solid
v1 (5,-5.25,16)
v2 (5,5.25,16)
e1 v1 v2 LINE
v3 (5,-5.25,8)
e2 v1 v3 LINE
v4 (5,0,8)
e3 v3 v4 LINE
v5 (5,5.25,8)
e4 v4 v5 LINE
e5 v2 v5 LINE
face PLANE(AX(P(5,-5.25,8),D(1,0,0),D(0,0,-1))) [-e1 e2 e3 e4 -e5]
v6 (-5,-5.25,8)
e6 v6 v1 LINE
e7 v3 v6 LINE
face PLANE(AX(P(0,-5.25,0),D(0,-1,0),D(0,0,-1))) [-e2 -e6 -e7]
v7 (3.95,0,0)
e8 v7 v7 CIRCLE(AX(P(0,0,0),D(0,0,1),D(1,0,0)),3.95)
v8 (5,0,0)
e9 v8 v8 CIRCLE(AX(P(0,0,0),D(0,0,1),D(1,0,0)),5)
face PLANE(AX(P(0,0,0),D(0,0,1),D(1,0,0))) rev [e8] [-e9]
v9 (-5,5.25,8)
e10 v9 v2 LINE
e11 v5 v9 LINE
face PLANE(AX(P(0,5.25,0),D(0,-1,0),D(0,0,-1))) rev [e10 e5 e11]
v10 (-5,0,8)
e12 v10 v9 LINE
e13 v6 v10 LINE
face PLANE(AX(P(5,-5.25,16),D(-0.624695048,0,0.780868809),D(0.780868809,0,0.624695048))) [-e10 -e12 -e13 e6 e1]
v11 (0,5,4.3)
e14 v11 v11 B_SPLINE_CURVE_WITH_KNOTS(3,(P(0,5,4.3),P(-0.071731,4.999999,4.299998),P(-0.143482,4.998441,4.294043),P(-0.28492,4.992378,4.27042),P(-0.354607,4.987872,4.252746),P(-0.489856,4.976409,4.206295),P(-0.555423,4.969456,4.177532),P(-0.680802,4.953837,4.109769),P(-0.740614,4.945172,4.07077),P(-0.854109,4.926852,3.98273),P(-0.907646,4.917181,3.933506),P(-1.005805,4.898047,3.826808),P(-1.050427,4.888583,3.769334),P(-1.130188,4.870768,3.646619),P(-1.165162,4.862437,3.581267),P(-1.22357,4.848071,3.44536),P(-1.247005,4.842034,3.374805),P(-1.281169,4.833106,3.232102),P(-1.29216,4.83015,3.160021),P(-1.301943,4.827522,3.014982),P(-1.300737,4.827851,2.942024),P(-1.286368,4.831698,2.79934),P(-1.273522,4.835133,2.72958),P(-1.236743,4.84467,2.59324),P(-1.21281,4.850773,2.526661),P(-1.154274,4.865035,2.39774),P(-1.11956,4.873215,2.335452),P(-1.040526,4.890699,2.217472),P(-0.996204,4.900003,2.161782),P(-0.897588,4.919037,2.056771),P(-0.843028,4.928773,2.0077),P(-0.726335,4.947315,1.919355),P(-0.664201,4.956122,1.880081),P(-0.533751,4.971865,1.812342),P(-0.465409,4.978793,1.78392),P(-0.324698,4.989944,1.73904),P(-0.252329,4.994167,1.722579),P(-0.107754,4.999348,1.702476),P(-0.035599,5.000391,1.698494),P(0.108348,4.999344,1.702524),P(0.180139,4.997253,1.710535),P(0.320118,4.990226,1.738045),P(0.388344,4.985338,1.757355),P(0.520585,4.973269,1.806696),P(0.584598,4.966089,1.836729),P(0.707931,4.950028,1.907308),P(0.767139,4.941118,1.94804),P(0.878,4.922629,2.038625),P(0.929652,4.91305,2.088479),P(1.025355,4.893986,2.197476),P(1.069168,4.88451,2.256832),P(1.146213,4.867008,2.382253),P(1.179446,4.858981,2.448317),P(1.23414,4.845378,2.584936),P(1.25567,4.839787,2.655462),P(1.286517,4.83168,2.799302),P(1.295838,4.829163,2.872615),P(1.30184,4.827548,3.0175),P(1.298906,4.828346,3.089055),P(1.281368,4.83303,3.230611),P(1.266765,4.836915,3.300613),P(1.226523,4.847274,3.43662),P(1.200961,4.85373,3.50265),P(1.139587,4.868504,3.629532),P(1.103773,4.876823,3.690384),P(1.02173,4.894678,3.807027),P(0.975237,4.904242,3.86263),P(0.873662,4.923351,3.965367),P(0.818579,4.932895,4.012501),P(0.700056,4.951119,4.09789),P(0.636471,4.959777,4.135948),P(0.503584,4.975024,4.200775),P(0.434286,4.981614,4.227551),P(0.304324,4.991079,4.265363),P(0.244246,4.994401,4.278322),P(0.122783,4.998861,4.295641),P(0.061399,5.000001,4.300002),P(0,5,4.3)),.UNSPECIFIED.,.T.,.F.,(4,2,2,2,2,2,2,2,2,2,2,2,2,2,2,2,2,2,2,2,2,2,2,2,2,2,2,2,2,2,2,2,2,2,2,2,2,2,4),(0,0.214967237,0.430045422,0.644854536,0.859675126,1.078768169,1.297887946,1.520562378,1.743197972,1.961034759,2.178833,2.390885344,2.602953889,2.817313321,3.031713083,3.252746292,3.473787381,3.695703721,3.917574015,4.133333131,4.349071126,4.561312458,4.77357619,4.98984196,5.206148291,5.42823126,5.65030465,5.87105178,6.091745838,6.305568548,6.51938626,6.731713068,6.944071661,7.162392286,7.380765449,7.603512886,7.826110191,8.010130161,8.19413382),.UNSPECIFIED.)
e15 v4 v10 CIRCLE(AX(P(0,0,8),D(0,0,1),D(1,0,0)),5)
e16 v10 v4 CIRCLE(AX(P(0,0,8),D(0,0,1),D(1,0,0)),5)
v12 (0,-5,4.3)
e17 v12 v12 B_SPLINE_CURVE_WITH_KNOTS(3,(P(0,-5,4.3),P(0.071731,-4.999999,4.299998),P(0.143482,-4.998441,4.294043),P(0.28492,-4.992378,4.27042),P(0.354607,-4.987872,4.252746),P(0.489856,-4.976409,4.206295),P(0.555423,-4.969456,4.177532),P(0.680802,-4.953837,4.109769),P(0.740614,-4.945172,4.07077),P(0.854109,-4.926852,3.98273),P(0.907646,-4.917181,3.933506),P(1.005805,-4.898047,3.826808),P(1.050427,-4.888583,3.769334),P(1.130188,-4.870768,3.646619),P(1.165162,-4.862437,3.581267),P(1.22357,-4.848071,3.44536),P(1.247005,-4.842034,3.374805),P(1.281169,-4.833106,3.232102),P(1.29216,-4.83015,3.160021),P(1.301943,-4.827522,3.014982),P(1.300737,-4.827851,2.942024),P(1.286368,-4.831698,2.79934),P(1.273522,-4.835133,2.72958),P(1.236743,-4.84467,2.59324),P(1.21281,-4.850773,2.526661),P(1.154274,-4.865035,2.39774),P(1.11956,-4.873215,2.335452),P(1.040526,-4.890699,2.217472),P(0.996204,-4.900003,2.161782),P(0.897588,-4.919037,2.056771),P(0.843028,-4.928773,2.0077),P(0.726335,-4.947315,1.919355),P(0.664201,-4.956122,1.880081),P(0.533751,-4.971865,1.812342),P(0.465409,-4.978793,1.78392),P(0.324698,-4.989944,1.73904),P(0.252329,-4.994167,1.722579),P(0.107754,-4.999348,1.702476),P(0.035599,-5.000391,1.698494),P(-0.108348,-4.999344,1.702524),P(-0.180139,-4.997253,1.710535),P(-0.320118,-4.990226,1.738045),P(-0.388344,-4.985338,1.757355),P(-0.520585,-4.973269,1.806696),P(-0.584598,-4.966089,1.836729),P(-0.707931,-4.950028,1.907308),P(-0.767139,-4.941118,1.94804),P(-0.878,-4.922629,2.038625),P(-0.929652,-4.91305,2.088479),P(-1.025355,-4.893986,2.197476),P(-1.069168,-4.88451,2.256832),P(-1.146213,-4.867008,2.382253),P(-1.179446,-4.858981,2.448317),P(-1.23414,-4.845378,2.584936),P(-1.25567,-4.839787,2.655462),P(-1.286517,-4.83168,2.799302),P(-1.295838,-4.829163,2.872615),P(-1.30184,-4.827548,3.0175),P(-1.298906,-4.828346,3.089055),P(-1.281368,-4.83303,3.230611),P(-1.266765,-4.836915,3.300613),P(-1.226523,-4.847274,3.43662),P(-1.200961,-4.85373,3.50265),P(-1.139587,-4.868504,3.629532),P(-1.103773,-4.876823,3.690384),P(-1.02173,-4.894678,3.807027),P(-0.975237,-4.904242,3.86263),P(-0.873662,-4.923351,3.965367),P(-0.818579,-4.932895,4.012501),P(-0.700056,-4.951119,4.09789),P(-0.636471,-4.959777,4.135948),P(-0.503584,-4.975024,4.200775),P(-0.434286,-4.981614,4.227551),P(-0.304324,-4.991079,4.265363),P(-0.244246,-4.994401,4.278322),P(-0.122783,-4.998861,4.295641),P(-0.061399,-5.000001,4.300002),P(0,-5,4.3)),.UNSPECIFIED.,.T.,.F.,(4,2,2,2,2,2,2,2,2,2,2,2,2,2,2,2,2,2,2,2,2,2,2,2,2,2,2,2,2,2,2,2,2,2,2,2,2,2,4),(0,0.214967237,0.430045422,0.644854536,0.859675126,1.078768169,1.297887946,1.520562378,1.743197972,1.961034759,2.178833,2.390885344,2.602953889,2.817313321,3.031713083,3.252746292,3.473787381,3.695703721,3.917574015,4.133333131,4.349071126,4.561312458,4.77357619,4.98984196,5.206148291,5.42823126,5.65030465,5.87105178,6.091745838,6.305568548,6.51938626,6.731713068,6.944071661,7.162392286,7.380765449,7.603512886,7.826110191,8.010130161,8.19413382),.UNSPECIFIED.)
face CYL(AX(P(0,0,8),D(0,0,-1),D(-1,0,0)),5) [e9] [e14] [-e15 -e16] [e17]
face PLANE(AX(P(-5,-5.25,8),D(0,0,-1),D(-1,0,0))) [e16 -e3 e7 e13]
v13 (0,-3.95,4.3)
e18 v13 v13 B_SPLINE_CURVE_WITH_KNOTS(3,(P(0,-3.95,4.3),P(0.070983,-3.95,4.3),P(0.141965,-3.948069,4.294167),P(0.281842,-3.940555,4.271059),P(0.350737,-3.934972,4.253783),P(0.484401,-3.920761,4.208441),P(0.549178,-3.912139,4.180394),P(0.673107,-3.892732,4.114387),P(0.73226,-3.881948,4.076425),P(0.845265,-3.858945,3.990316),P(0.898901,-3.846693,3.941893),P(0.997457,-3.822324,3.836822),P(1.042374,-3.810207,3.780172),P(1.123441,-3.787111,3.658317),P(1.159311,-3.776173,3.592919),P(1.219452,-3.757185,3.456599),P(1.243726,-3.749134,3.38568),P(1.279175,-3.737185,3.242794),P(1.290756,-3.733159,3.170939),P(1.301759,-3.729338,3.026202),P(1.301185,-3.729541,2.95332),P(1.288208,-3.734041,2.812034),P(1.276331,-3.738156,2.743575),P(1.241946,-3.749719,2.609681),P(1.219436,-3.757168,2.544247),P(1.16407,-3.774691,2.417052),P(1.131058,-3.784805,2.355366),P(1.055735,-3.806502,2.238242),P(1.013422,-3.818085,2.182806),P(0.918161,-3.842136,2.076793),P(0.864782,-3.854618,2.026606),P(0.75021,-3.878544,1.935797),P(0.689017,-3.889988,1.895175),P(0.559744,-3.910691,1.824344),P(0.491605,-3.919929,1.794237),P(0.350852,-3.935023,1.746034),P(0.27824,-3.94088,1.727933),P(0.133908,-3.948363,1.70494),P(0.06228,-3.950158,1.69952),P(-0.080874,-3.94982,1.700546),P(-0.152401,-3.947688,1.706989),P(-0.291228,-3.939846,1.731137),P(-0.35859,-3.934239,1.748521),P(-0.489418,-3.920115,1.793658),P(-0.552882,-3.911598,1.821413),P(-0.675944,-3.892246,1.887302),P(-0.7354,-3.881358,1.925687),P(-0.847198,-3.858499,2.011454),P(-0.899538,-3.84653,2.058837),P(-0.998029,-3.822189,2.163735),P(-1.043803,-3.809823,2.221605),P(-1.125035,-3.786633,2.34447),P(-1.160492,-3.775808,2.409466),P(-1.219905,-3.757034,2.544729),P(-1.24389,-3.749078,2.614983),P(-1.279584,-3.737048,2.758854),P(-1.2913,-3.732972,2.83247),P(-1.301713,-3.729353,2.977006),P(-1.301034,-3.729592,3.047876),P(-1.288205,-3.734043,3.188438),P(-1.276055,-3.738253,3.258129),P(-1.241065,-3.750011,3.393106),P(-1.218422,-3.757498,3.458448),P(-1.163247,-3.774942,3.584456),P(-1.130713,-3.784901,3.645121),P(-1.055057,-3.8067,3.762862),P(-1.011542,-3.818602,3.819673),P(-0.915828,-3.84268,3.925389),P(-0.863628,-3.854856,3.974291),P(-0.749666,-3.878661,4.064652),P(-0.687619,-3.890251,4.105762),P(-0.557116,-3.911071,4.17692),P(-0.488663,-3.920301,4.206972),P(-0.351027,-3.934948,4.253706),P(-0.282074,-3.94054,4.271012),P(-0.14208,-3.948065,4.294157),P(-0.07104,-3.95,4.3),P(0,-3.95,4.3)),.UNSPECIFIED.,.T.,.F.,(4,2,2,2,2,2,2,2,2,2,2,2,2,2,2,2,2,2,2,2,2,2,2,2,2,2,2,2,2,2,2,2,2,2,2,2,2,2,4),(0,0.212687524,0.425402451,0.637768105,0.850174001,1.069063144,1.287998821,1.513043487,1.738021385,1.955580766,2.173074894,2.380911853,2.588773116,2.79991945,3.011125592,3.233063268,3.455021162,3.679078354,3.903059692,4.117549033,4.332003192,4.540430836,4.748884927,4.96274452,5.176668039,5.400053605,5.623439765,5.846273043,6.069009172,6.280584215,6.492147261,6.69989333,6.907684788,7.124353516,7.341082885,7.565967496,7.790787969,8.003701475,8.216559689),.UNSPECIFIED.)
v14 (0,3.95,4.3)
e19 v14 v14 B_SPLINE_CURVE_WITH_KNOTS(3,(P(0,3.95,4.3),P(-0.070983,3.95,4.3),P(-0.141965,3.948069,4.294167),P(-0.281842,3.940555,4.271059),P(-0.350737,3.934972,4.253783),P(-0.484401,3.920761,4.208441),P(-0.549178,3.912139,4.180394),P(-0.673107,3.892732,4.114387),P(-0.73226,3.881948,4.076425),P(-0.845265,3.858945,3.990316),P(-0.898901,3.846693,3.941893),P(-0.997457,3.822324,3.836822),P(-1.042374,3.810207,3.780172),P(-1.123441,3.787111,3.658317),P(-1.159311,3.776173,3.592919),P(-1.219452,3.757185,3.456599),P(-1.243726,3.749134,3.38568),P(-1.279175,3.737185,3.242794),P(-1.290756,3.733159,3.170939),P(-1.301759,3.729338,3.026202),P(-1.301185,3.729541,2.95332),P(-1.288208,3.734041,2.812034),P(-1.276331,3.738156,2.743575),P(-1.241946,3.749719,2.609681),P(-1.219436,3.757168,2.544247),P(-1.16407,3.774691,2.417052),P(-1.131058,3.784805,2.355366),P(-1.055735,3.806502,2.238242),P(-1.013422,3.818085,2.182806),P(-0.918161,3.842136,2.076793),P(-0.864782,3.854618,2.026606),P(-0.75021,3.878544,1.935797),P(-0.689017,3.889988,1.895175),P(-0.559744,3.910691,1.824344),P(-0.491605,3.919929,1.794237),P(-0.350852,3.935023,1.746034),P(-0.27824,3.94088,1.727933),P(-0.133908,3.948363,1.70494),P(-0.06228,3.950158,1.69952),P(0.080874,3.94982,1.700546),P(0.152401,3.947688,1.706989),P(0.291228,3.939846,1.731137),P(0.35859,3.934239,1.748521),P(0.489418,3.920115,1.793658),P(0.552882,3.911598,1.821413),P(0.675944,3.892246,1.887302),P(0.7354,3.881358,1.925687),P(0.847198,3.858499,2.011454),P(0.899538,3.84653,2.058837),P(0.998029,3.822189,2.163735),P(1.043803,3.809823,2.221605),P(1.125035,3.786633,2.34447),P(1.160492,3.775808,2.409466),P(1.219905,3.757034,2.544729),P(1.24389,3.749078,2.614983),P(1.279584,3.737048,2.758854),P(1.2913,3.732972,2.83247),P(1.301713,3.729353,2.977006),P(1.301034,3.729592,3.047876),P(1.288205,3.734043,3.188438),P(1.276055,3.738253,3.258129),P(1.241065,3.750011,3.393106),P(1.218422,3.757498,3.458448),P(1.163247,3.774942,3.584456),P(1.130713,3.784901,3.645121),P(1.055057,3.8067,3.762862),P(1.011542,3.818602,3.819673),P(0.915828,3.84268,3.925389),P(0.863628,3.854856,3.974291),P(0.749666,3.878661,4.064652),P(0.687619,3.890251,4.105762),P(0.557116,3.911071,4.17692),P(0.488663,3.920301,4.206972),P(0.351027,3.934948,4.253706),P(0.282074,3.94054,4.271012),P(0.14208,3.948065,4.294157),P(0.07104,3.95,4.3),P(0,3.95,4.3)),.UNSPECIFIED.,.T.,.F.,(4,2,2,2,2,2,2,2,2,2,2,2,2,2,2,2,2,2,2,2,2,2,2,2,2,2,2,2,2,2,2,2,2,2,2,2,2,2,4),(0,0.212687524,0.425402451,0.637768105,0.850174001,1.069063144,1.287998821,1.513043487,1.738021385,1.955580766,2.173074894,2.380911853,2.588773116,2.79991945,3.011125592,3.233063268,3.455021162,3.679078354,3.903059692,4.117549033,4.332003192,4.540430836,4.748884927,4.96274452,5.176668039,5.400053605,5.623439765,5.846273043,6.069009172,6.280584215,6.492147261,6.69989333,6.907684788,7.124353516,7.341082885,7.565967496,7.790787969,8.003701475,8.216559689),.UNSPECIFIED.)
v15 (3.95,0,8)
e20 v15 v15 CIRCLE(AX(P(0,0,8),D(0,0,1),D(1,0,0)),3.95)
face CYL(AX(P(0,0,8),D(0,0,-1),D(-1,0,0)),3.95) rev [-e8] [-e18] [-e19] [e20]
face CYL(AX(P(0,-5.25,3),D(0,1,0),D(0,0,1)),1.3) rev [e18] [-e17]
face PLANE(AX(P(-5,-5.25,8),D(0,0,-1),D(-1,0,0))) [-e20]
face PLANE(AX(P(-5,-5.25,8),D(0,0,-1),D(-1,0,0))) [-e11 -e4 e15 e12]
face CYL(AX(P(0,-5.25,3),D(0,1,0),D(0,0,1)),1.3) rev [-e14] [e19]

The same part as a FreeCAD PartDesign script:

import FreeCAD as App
import Part
import Sketcher


def add_polygon(sketch, points):
    """Adds a closed chain of lines whose ends are joined by coincident constraints."""
    first, n = sketch.GeometryCount, len(points)
    for a, b in zip(points, points[1:] + points[:1]):
        sketch.addGeometry(Part.LineSegment(App.Vector(*a, 0), App.Vector(*b, 0)), False)
    for i in range(n):
        sketch.addConstraint(Sketcher.Constraint("Coincident", first + i, 2, first + (i + 1) % n, 1))

doc = App.newDocument("Part")
body = doc.addObject("PartDesign::Body", "Body")

sketch1 = body.newObject("Sketcher::SketchObject", "Sketch")
sketch1.AttachmentSupport = (doc.getObject("XY_Plane"), [""])
sketch1.MapMode = "FlatFace"
sketch1.addGeometry([
    Part.Circle(App.Vector(0, 0, 0), App.Vector(0, 0, 1), 5),
    Part.Circle(App.Vector(0, 0, 0), App.Vector(0, 0, 1), 4),
], False)
sketch1.addConstraint([
    Sketcher.Constraint("Coincident", 0, 3, -1, 1),
    Sketcher.Constraint("Coincident", 1, 3, -1, 1),
    Sketcher.Constraint("Diameter", 0, 10.0),
    Sketcher.Constraint("Diameter", 1, 7.9),
])
pad1 = body.newObject("PartDesign::Pad", "Pad")
pad1.Profile = sketch1
pad1.Length = 8

sketch2 = body.newObject("Sketcher::SketchObject", "Sketch001")
sketch2.AttachmentSupport = (doc.getObject("XZ_Plane"), [""])
sketch2.MapMode = "FlatFace"
add_polygon(sketch2, [(-5, 8), (5, 16), (5, 8)])
sketch2.addConstraint([
    Sketcher.Constraint("Vertical", 1),
    Sketcher.Constraint("Horizontal", 2),
    Sketcher.Constraint("DistanceX", 2, 2, 2, 1, 10.0),
    Sketcher.Constraint("DistanceY", 1, 2, 1, 1, 8.0),
    Sketcher.Constraint("DistanceX", -1, 1, 0, 2, 5.0),
    Sketcher.Constraint("DistanceY", -1, 1, 0, 2, 16.0),
])
pad2 = body.newObject("PartDesign::Pad", "Pad001")
pad2.Profile = sketch2
pad2.Type = "TwoLengths"
pad2.Length = 5.25
pad2.Length2 = 5.25
pad2.Reversed = True

sketch3 = body.newObject("Sketcher::SketchObject", "Sketch002")
sketch3.AttachmentSupport = (doc.getObject("XZ_Plane"), [""])
sketch3.MapMode = "FlatFace"
sketch3.addGeometry(Part.Circle(App.Vector(0, 3, 0), App.Vector(0, 0, 1), 1.3), False)
sketch3.addConstraint([
    Sketcher.Constraint("PointOnObject", 0, 3, -2),
    Sketcher.Constraint("Diameter", 0, 2.6),
    Sketcher.Constraint("DistanceY", -1, 1, 0, 3, 3.0),
])
pocket1 = body.newObject("PartDesign::Pocket", "Pocket")
pocket1.Profile = sketch3
pocket1.Type = "ThroughAll"
pocket1.Midplane = True

doc.recompute()
